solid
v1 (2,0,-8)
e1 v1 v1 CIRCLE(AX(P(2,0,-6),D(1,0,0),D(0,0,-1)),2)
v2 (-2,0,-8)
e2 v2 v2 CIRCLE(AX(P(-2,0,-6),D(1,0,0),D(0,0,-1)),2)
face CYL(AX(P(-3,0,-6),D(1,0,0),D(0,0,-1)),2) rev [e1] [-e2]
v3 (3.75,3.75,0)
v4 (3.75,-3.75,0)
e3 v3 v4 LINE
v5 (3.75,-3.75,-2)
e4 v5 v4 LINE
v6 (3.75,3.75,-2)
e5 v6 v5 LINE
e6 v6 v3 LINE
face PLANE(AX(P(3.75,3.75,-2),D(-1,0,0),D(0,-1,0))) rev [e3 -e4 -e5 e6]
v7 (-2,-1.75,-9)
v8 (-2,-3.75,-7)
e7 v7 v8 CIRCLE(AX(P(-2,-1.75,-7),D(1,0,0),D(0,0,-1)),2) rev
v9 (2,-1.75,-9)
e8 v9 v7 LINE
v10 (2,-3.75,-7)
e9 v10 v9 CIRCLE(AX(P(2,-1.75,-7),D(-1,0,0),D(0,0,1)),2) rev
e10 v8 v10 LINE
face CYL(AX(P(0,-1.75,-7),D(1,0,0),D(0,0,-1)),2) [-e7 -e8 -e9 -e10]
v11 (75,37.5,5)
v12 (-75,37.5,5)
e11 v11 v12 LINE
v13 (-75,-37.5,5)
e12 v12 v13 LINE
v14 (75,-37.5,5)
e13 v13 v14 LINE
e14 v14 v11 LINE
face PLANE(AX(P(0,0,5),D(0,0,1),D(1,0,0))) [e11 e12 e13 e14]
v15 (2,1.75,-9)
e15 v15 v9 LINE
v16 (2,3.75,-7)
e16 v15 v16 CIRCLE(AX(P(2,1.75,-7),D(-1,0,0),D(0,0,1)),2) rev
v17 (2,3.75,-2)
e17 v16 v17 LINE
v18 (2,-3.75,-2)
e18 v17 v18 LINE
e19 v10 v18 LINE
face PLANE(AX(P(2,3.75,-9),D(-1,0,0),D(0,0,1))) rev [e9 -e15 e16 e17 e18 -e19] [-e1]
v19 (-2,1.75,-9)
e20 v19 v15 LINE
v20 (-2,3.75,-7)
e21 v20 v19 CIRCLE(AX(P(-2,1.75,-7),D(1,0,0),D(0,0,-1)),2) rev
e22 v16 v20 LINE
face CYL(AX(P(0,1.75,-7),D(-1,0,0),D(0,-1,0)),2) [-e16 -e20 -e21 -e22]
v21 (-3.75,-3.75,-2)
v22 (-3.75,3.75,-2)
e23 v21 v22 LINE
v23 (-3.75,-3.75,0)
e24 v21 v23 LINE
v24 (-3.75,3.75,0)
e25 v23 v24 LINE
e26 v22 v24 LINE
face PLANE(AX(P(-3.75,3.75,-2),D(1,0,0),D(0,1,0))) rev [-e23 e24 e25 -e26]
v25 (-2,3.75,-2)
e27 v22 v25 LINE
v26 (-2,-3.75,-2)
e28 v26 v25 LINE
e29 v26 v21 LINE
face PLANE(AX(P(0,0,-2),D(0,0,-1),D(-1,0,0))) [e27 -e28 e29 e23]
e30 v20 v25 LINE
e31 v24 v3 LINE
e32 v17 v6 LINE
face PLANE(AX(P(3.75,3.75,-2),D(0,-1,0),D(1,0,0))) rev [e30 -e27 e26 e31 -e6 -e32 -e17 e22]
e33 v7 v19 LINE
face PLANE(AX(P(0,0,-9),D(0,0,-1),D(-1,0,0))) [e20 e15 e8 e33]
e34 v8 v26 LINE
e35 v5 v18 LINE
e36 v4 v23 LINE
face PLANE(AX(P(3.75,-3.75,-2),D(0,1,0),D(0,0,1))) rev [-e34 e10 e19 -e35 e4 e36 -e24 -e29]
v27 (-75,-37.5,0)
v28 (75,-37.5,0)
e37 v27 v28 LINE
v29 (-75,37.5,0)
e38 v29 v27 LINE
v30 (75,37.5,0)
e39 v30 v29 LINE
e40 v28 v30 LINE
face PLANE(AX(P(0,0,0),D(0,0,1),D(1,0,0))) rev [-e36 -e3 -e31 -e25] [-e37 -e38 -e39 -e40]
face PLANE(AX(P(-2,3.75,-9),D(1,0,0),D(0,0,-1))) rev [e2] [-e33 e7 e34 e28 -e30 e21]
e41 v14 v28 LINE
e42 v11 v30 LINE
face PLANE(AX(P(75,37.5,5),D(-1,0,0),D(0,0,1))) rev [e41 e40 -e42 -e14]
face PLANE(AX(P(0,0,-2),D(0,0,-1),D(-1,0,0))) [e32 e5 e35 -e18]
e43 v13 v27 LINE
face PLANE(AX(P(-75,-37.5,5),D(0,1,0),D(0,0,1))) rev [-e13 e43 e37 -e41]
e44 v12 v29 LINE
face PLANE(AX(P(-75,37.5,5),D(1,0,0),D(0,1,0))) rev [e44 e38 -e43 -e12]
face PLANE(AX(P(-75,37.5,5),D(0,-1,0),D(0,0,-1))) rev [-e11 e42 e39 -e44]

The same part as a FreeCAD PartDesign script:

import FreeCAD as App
import Part
import Sketcher

V = App.Vector


def edges_at(feature, points):
    """Names of the edges that pass closest to the given points."""
    edges = feature.Shape.Edges
    near = lambda p: min(range(len(edges)), key=lambda i: edges[i].distToShape(Part.Vertex(*p))[0])
    return sorted({f"Edge{near(p) + 1}" for p in points})

doc = App.newDocument("Part")
body = doc.addObject("PartDesign::Body", "Body")

# Sketch on XY plane
sketch1 = body.newObject("Sketcher::SketchObject", "Sketch")
sketch1.AttachmentSupport = (doc.getObject("XY_Plane"), [""])
sketch1.MapMode = "FlatFace"
sketch1.addGeometry([
    Part.LineSegment(V(-75, 38, 0), V(-75, -38, 0)),
    Part.LineSegment(V(-75, -38, 0), V(75, -38, 0)),
    Part.LineSegment(V(75, -38, 0), V(75, 38, 0)),
    Part.LineSegment(V(75, 38, 0), V(-75, 38, 0)),
], False)
sketch1.addConstraint([
    Sketcher.Constraint("Coincident", 0, 2, 1, 1),
    Sketcher.Constraint("Coincident", 1, 2, 2, 1),
    Sketcher.Constraint("Coincident", 2, 2, 3, 1),
    Sketcher.Constraint("Coincident", 3, 2, 0, 1),
    Sketcher.Constraint("Vertical", 0),
    Sketcher.Constraint("Horizontal", 1),
    Sketcher.Constraint("Vertical", 2),
    Sketcher.Constraint("Horizontal", 3),
    Sketcher.Constraint("Symmetric", 0, 2, 2, 2, -1, 1),
    Sketcher.Constraint("DistanceX", 1, 1, 1, 2, 150.0),
    Sketcher.Constraint("DistanceY", 0, 2, 0, 1, 75.0),
])
pad1 = body.newObject("PartDesign::Pad", "Pad")
pad1.Profile = sketch1
pad1.Length = 5

# Sketch on XY plane
sketch2 = body.newObject("Sketcher::SketchObject", "Sketch001")
sketch2.AttachmentSupport = (doc.getObject("XY_Plane"), [""])
sketch2.MapMode = "FlatFace"
sketch2.addGeometry([
    Part.LineSegment(V(4, 4, 0), V(4, -4, 0)),
    Part.LineSegment(V(4, -4, 0), V(-4, -4, 0)),
    Part.LineSegment(V(-4, -4, 0), V(-4, 4, 0)),
    Part.LineSegment(V(-4, 4, 0), V(4, 4, 0)),
], False)
sketch2.addConstraint([
    Sketcher.Constraint("Coincident", 0, 2, 1, 1),
    Sketcher.Constraint("Coincident", 1, 2, 2, 1),
    Sketcher.Constraint("Coincident", 2, 2, 3, 1),
    Sketcher.Constraint("Coincident", 3, 2, 0, 1),
    Sketcher.Constraint("Vertical", 0),
    Sketcher.Constraint("Horizontal", 1),
    Sketcher.Constraint("Vertical", 2),
    Sketcher.Constraint("Horizontal", 3),
    Sketcher.Constraint("Symmetric", 0, 2, 2, 2, -1, 1),
    Sketcher.Constraint("Equal", 3, 0),
    Sketcher.Constraint("DistanceX", 1, 2, 1, 1, 7.5),
])
pad2 = body.newObject("PartDesign::Pad", "Pad001")
pad2.Profile = sketch2
pad2.Length = 2
pad2.Reversed = True

# Sketch on XY plane
sketch3 = body.newObject("Sketcher::SketchObject", "Sketch002")
sketch3.AttachmentSupport = (doc.getObject("XY_Plane"), [""])
sketch3.MapMode = "FlatFace"
sketch3.AttachmentOffset = App.Placement(V(0, 0, -2), App.Rotation())
sketch3.addGeometry([
    Part.LineSegment(V(2, 3.8, 0), V(2, -3.8, 0)),
    Part.LineSegment(V(2, -3.8, 0), V(-2, -3.8, 0)),
    Part.LineSegment(V(-2, -3.8, 0), V(-2, 3.8, 0)),
    Part.LineSegment(V(-2, 3.8, 0), V(2, 3.8, 0)),
], False)
sketch3.addConstraint([
    Sketcher.Constraint("Coincident", 0, 2, 1, 1),
    Sketcher.Constraint("Coincident", 1, 2, 2, 1),
    Sketcher.Constraint("Coincident", 2, 2, 3, 1),
    Sketcher.Constraint("Coincident", 3, 2, 0, 1),
    Sketcher.Constraint("Vertical", 0),
    Sketcher.Constraint("Horizontal", 1),
    Sketcher.Constraint("Vertical", 2),
    Sketcher.Constraint("Horizontal", 3),
    Sketcher.Constraint("Symmetric", 0, 2, 2, 2, -1, 1),
    Sketcher.Constraint("DistanceX", 1, 2, 1, 1, 4.0),
    Sketcher.Constraint("DistanceY", 0, 2, 0, 1, 7.5),
])
pad3 = body.newObject("PartDesign::Pad", "Pad002")
pad3.Profile = sketch3
pad3.Length = 7
pad3.Reversed = True
doc.recompute()

fillet = body.newObject("PartDesign::Fillet", "Fillet")
fillet.Base = (pad3, edges_at(pad3, [(0, 3.75, -9), (0, -3.75, -9)]))
fillet.Radius = 2

# Sketch on YZ plane
sketch4 = body.newObject("Sketcher::SketchObject", "Sketch003")
sketch4.AttachmentSupport = (doc.getObject("YZ_Plane"), [""])
sketch4.MapMode = "FlatFace"
sketch4.AttachmentOffset = App.Placement(V(0, 0, 2), App.Rotation())
sketch4.addGeometry(Part.Circle(V(0, -6, 0), V(0, 0, 1), 2), False)
sketch4.addConstraint([
    Sketcher.Constraint("PointOnObject", 0, 3, -2),
    Sketcher.Constraint("Diameter", 0, 4.0),
    Sketcher.Constraint("DistanceY", 0, 3, -1, 1, 6.0),
])
pocket1 = body.newObject("PartDesign::Pocket", "Pocket")
pocket1.Profile = sketch4
pocket1.Length = 5

doc.recompute()
